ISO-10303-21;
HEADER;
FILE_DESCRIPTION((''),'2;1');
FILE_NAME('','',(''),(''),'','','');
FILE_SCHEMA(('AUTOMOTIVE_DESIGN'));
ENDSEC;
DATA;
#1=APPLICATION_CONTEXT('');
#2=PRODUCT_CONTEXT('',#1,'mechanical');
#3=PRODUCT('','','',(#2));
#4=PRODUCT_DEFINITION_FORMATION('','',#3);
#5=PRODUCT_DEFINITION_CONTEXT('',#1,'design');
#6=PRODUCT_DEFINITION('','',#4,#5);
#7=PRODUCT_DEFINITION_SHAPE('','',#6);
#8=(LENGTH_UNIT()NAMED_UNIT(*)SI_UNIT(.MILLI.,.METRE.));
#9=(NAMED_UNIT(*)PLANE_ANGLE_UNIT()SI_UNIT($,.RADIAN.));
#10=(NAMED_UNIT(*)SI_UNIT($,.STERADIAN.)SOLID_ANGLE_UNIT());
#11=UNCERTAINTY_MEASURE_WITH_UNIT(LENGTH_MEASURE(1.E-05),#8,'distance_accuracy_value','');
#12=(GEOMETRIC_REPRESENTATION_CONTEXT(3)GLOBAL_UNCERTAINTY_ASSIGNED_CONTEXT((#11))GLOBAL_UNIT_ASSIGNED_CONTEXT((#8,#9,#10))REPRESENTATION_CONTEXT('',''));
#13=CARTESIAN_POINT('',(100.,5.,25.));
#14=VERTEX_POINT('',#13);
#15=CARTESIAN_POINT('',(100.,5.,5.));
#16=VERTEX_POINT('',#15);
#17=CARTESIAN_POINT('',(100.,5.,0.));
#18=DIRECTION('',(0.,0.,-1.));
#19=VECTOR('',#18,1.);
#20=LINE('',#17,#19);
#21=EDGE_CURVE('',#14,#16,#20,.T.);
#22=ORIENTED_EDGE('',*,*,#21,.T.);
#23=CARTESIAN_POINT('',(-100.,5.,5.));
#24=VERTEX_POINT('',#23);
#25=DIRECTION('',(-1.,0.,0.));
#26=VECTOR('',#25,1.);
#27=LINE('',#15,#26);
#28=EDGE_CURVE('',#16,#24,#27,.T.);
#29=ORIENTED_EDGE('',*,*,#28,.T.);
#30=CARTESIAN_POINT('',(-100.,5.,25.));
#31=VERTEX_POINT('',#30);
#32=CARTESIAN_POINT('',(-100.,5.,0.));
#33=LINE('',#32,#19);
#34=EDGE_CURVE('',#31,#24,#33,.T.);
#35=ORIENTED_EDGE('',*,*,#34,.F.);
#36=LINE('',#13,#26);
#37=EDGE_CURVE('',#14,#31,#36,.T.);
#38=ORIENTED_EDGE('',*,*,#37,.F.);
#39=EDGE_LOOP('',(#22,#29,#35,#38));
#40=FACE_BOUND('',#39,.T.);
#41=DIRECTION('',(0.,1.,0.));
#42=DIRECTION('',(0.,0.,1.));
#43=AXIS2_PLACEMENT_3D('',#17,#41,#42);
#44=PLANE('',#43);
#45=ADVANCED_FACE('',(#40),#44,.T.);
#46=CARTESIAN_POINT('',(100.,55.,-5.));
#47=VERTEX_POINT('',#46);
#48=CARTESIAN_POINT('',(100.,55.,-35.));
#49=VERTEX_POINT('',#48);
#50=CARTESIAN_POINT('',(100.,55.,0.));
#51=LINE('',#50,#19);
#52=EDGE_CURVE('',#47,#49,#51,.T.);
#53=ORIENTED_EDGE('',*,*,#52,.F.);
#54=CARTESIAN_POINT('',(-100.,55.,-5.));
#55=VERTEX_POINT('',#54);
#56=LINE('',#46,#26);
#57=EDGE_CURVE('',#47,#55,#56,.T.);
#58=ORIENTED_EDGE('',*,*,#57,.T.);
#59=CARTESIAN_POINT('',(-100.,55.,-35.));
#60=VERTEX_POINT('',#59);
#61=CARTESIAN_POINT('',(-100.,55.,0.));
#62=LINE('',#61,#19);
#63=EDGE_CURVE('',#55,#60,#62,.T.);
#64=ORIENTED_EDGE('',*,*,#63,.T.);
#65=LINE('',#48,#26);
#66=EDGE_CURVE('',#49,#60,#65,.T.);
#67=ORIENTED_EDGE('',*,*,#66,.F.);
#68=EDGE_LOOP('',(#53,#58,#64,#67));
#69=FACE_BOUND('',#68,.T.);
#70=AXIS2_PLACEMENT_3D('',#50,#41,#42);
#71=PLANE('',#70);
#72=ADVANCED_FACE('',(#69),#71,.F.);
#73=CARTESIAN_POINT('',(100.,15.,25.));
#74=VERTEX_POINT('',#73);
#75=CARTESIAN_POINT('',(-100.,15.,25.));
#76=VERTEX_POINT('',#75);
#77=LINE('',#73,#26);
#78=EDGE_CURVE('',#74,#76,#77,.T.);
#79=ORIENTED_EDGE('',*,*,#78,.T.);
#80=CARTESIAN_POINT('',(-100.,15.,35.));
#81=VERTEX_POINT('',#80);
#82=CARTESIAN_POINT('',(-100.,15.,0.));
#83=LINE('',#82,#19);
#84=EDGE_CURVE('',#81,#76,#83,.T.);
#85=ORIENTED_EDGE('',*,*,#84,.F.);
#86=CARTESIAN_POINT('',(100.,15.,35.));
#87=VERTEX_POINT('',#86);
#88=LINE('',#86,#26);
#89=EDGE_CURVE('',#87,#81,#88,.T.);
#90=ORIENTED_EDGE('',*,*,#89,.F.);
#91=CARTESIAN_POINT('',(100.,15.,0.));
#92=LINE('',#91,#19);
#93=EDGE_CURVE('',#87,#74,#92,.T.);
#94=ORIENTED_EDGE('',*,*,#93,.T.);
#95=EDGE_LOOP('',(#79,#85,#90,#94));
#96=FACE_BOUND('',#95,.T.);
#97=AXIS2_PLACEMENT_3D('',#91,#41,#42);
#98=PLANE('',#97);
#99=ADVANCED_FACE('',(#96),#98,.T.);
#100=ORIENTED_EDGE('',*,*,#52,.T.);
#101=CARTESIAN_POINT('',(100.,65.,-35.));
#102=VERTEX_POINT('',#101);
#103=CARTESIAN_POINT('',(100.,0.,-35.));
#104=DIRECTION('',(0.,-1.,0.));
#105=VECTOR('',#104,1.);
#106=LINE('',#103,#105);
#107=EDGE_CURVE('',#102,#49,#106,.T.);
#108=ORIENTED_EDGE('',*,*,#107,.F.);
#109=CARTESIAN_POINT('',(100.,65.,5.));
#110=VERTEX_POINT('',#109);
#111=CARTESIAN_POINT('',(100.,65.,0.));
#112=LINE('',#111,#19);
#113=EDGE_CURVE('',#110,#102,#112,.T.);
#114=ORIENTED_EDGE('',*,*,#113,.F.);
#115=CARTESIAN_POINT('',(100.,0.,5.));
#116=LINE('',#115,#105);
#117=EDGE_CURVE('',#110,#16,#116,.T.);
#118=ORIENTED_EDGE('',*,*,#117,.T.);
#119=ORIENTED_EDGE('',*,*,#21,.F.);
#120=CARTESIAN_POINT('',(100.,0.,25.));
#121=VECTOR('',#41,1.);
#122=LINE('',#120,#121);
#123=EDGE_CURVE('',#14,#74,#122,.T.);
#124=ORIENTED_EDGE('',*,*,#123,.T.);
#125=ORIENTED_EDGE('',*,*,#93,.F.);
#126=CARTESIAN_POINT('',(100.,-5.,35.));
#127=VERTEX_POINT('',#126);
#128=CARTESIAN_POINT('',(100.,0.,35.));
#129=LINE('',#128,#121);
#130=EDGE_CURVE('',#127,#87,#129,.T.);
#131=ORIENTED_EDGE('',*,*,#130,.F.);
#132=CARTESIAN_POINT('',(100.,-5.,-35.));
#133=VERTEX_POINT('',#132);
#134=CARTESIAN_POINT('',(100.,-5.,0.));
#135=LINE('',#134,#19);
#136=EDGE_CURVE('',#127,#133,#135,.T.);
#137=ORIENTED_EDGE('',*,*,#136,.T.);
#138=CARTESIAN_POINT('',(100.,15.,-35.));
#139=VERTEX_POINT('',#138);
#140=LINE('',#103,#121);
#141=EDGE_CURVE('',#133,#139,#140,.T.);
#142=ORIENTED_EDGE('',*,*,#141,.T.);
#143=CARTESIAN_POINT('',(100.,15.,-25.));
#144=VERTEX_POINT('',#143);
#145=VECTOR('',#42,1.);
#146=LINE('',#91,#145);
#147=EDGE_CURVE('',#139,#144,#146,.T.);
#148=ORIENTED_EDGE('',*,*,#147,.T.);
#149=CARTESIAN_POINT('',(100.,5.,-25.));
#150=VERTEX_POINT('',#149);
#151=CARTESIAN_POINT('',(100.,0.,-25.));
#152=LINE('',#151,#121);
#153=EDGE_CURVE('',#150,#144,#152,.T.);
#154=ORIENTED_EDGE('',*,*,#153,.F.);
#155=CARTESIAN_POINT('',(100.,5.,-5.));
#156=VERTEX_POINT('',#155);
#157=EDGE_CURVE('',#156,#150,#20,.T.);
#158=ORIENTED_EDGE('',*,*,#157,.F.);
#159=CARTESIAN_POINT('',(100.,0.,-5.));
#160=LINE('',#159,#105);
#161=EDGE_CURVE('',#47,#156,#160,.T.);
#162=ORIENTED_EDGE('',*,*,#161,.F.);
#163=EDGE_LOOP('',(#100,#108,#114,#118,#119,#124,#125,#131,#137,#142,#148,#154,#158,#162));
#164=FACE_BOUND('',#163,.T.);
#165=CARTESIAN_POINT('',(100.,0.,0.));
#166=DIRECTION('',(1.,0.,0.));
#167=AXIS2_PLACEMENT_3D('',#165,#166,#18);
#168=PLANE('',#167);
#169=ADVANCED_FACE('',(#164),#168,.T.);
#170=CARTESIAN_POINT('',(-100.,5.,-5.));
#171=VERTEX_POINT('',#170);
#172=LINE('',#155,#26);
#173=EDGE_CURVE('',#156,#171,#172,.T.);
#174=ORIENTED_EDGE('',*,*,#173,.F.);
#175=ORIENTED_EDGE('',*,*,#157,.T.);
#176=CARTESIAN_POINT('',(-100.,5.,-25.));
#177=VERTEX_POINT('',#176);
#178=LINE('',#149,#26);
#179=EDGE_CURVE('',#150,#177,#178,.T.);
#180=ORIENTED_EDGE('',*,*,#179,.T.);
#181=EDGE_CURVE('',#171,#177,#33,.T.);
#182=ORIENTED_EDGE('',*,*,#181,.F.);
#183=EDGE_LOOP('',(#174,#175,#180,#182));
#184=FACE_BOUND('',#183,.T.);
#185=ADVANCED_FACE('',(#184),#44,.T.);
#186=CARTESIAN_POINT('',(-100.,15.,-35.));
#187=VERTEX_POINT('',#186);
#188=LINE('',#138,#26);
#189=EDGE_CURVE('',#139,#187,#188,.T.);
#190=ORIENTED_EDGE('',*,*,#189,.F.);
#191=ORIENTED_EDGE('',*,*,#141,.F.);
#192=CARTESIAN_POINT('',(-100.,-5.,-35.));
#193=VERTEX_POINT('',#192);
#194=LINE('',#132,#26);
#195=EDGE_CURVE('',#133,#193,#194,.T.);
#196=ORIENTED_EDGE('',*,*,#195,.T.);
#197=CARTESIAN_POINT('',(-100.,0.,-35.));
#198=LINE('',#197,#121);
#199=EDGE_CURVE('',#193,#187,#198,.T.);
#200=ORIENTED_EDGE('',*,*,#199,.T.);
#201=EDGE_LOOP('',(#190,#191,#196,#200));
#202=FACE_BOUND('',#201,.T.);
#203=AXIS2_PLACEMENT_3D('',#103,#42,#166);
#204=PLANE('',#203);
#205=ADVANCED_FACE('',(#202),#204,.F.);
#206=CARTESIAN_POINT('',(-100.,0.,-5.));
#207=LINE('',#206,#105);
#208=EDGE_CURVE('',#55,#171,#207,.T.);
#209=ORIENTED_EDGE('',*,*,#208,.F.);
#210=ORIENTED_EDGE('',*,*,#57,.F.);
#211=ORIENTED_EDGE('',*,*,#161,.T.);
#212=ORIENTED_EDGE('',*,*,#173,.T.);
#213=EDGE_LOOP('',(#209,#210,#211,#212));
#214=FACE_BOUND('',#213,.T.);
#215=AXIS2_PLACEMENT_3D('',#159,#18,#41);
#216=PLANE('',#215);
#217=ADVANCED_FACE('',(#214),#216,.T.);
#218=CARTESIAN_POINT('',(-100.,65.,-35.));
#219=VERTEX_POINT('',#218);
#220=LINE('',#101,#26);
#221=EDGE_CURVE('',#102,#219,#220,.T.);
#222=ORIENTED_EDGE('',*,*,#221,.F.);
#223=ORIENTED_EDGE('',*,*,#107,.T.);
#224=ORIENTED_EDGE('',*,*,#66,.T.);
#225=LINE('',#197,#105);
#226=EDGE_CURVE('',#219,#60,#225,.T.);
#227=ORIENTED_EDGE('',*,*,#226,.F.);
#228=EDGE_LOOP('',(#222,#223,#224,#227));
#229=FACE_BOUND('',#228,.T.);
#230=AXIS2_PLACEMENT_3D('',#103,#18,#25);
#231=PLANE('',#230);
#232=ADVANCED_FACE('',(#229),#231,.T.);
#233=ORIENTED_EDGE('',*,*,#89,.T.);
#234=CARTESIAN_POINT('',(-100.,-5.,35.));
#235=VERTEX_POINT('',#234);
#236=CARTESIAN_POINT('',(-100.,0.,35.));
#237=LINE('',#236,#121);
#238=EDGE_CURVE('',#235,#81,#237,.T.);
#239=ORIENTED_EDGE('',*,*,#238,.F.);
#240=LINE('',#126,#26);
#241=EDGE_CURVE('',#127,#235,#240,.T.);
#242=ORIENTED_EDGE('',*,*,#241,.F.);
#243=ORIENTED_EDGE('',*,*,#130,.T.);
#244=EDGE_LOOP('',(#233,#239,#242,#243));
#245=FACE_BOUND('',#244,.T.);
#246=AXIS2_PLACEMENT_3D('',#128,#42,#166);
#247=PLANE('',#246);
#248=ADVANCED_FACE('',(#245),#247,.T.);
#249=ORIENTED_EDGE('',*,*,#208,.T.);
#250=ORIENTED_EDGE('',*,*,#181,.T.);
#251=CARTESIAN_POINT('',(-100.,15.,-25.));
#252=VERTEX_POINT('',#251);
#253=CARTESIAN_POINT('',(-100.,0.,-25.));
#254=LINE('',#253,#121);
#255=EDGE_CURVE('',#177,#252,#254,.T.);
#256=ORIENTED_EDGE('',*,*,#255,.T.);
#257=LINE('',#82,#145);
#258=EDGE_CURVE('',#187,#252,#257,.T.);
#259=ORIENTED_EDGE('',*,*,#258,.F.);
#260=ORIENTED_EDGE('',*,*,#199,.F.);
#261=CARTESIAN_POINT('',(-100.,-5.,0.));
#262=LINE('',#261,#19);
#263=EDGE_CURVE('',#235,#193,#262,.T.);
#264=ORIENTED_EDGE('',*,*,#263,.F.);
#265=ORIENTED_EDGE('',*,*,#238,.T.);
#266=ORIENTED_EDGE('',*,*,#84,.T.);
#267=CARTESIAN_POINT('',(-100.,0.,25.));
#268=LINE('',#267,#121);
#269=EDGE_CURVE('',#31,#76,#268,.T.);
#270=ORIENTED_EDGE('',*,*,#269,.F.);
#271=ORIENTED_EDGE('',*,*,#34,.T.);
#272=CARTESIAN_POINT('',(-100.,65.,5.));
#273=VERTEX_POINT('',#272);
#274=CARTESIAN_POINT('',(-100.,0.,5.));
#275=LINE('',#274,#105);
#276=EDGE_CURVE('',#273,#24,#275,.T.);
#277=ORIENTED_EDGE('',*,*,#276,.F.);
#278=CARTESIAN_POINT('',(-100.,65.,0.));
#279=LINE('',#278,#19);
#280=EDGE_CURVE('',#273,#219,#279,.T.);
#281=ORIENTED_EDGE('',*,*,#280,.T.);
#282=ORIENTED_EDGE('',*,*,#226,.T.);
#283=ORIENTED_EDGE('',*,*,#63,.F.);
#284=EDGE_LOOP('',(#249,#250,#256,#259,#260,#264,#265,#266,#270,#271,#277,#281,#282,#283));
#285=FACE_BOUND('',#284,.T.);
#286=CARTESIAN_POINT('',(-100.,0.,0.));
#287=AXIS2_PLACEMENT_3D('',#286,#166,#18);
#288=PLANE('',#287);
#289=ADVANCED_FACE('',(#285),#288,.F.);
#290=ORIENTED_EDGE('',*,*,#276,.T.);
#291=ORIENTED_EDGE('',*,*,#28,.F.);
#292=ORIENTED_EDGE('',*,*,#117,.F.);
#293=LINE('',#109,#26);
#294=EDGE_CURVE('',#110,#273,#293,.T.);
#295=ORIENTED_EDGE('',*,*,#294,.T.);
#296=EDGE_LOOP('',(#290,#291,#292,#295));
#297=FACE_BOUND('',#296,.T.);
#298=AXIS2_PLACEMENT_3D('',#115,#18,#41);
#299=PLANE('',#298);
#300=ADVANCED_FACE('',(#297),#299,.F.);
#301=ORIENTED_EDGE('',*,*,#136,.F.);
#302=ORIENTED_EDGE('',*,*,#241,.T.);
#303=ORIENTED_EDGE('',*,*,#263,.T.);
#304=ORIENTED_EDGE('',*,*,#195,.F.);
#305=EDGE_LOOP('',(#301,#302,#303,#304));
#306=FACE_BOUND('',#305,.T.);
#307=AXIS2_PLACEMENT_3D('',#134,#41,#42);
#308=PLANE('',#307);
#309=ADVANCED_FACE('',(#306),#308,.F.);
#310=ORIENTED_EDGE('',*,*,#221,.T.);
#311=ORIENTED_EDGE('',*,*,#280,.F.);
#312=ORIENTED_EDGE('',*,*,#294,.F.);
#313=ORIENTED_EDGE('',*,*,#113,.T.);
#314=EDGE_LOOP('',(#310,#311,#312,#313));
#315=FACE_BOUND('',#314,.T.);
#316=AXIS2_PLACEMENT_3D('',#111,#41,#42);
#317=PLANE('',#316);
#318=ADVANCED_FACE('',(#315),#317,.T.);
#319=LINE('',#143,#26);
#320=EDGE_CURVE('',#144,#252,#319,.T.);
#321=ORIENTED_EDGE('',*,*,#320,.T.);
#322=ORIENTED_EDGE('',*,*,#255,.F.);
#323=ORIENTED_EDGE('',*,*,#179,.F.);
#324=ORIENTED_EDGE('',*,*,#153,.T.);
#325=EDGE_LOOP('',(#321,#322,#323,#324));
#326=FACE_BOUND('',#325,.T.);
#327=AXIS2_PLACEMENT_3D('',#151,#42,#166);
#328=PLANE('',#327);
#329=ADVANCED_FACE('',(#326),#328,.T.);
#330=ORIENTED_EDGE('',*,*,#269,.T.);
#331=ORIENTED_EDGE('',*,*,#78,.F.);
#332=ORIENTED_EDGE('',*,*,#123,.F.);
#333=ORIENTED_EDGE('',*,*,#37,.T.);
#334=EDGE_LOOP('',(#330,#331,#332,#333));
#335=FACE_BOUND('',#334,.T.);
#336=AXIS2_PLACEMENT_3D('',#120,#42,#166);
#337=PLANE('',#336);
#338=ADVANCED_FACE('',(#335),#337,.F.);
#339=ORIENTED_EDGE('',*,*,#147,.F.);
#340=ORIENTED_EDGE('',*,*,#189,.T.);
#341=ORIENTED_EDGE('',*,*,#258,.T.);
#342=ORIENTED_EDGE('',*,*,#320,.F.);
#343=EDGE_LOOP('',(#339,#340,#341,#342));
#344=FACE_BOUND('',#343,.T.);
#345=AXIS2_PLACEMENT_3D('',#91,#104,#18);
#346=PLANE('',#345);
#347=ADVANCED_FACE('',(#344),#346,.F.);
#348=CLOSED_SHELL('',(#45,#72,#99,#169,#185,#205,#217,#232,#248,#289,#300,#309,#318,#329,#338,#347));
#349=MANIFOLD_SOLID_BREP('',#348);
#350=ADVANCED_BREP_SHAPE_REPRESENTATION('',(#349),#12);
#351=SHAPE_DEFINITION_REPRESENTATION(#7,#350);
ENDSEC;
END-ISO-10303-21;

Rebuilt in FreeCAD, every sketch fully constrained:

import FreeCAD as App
import Part
import Sketcher

V = App.Vector


def add_polygon(sketch, points):
    """Adds a closed chain of lines whose ends are joined by coincident constraints."""
    first, n = sketch.GeometryCount, len(points)
    for a, b in zip(points, points[1:] + points[:1]):
        sketch.addGeometry(Part.LineSegment(App.Vector(*a, 0), App.Vector(*b, 0)), False)
    for i in range(n):
        sketch.addConstraint(Sketcher.Constraint("Coincident", first + i, 2, first + (i + 1) % n, 1))

doc = App.newDocument("Part")
body = doc.addObject("PartDesign::Body", "Body")

# Sketch on YZ plane
sketch1 = body.newObject("Sketcher::SketchObject", "Sketch")
sketch1.AttachmentSupport = (doc.getObject("YZ_Plane"), [""])
sketch1.MapMode = "FlatFace"
add_polygon(sketch1, [(65, 5), (5, 5), (5, 25), (15, 25), (15, 35), (-5, 35), (-5, -35), (15, -35), (15, -25), (5, -25), (5, -5), (55, -5), (55, -35), (65, -35)])  # lines 0-13
sketch1.addConstraint(Sketcher.Constraint("Horizontal", 0))
sketch1.addConstraint(Sketcher.Constraint("Vertical", 1))
sketch1.addConstraint(Sketcher.Constraint("Horizontal", 2))
sketch1.addConstraint(Sketcher.Constraint("Vertical", 3))
sketch1.addConstraint(Sketcher.Constraint("Horizontal", 4))
sketch1.addConstraint(Sketcher.Constraint("Vertical", 5))
sketch1.addConstraint(Sketcher.Constraint("Horizontal", 6))
sketch1.addConstraint(Sketcher.Constraint("Vertical", 7))
sketch1.addConstraint(Sketcher.Constraint("Horizontal", 8))
sketch1.addConstraint(Sketcher.Constraint("Vertical", 9))
sketch1.addConstraint(Sketcher.Constraint("Horizontal", 10))
sketch1.addConstraint(Sketcher.Constraint("Vertical", 11))
sketch1.addConstraint(Sketcher.Constraint("Horizontal", 12))
sketch1.addConstraint(Sketcher.Constraint("Vertical", 13))
sketch1.addConstraint(Sketcher.Constraint("Symmetric", 3, 2, 6, 2, -1))
sketch1.addConstraint(Sketcher.Constraint("Symmetric", 1, 2, 8, 2, -1))
sketch1.addConstraint(Sketcher.Constraint("Horizontal", 6, 2, 11, 2))
sketch1.addConstraint(Sketcher.Constraint("Equal", 8, 12))
sketch1.addConstraint(Sketcher.Constraint("Equal", 6, 1))
sketch1.addConstraint(Sketcher.Constraint("Equal", 12, 3))
sketch1.addConstraint(Sketcher.Constraint("Equal", 1, 9))
sketch1.addConstraint(Sketcher.Constraint("DistanceX", 0, 2, 0, 1, 60.0))
sketch1.addConstraint(Sketcher.Constraint("DistanceX", 2, 1, 2, 2, 10.0))
sketch1.addConstraint(Sketcher.Constraint("DistanceX", 4, 2, 4, 1, 20.0))
sketch1.addConstraint(Sketcher.Constraint("DistanceY", 5, 2, 5, 1, 70.0))
sketch1.addConstraint(Sketcher.Constraint("DistanceX", -1, 1, 0, 2, 5.0))
pad1 = body.newObject("PartDesign::Pad", "Pad")
pad1.Profile = sketch1
pad1.Length = 200
pad1.Midplane = True

doc.recompute()
